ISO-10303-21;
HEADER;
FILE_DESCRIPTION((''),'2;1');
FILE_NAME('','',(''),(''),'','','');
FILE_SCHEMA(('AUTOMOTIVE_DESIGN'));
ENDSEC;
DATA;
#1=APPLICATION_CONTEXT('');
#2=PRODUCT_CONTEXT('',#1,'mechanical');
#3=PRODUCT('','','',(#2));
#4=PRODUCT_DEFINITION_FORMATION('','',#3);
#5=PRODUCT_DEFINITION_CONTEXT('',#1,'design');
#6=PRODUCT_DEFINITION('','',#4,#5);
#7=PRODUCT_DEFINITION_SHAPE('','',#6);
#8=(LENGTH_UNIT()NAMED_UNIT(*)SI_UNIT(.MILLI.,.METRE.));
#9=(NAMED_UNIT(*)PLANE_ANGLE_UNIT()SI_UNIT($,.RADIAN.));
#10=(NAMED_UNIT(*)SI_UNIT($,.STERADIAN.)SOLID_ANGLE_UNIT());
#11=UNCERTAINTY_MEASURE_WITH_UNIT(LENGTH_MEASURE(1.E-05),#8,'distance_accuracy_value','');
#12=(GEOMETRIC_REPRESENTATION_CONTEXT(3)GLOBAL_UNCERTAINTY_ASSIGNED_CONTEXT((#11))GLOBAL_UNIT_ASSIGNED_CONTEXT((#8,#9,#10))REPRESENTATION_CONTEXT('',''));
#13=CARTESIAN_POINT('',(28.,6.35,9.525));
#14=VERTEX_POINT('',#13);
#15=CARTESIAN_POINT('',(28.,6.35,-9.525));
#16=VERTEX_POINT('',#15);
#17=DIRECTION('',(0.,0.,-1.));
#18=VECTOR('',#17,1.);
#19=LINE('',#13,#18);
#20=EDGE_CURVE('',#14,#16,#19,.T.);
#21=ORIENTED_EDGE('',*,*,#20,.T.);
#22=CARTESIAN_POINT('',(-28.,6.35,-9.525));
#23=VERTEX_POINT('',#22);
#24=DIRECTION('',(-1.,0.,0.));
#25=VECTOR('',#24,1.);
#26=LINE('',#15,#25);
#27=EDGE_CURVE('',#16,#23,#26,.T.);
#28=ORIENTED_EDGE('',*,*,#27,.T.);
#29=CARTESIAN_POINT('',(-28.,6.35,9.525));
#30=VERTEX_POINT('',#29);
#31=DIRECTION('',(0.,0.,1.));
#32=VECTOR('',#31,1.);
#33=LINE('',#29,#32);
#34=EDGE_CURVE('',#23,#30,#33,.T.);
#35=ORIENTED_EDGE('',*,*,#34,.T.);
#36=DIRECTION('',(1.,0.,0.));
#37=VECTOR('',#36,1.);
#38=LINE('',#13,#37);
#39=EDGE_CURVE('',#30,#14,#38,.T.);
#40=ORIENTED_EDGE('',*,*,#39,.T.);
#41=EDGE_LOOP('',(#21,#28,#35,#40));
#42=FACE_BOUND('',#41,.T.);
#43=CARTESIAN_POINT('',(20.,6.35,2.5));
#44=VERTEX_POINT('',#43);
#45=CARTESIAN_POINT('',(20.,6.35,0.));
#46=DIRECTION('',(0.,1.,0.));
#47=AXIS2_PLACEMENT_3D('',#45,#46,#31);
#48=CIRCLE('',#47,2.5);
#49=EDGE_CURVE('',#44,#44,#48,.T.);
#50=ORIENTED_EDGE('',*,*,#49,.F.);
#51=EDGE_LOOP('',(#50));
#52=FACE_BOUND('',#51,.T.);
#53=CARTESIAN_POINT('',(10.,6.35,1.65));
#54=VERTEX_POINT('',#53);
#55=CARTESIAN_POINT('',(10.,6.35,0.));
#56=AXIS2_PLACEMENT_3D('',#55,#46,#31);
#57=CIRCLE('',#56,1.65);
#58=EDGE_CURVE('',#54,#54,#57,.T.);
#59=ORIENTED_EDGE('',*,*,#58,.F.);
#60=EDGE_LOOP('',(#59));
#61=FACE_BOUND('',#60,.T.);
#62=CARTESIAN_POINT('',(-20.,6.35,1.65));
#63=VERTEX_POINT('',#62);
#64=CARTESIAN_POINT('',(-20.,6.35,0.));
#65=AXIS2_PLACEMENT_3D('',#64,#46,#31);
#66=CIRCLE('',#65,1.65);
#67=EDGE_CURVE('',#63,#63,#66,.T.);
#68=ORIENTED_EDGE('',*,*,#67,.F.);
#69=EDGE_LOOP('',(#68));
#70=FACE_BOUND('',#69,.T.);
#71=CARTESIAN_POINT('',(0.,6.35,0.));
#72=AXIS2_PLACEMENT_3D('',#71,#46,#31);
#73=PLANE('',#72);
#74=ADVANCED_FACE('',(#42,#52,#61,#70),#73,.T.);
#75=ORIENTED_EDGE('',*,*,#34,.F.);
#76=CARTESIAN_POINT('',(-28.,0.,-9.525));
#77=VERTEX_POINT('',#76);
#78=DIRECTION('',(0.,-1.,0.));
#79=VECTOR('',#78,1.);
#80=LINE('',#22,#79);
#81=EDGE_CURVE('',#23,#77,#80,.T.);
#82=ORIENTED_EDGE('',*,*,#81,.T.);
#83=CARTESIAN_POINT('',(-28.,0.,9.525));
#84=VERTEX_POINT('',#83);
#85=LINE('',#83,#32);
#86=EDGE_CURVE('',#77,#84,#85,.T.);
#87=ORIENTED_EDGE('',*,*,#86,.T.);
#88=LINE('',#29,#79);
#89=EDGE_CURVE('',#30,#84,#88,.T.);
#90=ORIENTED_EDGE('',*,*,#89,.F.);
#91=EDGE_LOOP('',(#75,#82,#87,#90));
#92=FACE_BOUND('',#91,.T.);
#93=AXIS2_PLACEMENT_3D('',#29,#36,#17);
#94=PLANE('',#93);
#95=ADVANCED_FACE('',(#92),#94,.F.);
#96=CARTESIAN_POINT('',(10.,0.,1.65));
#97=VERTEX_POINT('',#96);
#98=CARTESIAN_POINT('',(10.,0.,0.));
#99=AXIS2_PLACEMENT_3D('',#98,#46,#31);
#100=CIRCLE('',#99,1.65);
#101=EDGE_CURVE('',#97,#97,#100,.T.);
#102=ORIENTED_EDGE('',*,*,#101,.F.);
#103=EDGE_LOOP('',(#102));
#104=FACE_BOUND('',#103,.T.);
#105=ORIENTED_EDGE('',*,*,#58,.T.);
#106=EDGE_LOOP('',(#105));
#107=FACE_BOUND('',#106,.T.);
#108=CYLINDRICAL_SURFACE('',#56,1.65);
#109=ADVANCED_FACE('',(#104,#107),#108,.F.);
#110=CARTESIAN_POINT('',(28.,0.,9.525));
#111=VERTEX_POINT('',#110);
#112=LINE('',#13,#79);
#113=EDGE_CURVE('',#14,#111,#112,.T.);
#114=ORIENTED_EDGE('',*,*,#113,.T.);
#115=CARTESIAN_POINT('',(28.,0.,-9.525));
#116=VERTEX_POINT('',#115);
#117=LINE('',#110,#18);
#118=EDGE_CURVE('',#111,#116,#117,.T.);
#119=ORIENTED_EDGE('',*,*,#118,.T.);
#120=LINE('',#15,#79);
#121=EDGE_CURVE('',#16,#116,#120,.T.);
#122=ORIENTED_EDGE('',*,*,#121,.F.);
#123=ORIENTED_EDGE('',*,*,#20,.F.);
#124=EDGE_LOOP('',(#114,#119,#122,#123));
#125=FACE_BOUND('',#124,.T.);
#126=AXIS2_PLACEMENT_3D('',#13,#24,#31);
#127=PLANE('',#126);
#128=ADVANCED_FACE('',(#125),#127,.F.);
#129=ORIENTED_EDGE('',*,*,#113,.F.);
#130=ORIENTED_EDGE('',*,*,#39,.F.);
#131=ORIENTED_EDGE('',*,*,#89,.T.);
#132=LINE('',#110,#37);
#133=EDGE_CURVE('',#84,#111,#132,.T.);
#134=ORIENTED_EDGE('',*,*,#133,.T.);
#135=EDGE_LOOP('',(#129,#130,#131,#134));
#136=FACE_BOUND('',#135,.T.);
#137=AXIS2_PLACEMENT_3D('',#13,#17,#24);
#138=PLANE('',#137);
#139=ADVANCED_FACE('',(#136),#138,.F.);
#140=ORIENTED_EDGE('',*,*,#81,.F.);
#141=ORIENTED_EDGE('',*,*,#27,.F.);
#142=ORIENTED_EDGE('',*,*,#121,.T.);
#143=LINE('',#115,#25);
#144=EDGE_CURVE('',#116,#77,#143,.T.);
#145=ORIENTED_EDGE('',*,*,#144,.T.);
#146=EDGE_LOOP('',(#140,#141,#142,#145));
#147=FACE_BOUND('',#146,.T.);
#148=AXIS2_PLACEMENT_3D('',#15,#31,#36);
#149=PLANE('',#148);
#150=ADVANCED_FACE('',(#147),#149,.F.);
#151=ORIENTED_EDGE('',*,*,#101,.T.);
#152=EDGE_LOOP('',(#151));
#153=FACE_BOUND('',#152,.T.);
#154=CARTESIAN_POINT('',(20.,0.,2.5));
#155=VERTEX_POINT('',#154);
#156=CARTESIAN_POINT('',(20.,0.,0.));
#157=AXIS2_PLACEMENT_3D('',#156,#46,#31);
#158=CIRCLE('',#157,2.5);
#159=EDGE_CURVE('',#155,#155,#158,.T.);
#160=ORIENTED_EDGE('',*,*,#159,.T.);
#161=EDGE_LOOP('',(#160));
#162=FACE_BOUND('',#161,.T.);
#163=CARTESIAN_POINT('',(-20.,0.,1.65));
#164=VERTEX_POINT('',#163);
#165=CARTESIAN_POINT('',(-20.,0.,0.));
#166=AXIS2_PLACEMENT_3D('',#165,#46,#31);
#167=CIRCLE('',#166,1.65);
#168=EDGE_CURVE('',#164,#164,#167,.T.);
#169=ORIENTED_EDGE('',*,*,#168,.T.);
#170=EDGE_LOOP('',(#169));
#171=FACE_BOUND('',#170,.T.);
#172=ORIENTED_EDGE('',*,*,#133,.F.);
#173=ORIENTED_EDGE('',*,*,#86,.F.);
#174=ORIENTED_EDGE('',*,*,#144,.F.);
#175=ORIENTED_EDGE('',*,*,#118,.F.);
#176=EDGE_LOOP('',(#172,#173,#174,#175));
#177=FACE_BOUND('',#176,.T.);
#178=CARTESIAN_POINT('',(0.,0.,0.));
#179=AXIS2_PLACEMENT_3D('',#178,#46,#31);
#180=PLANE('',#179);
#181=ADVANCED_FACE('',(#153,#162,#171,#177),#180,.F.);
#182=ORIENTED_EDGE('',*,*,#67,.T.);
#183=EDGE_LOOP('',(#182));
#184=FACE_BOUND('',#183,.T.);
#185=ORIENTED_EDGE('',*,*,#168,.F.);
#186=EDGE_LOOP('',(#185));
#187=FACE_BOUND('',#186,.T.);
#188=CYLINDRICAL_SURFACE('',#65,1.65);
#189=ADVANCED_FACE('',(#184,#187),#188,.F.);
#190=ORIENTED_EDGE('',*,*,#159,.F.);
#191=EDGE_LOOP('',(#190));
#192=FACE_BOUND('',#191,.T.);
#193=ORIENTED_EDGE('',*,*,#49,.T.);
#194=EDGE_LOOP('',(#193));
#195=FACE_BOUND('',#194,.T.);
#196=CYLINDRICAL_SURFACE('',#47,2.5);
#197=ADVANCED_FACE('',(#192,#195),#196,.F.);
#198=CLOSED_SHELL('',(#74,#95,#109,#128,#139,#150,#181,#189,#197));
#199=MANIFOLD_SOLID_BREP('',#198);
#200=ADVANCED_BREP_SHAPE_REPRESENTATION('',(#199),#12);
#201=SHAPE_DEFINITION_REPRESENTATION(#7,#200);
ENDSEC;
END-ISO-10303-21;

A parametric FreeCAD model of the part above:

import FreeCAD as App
import Part
import Sketcher
Q = App.Units.Quantity

doc = App.newDocument("Part")
body = doc.addObject("PartDesign::Body", "Body")

# Sketch on XZ plane
sketch1 = body.newObject("Sketcher::SketchObject", "Sketch")
sketch1.AttachmentSupport = (doc.getObject("XZ_Plane"), [""])
sketch1.MapMode = "FlatFace"
sketch1.addGeometry([
    Part.LineSegment(App.Vector(-28, -10, 0), App.Vector(-28, 10, 0)),
    Part.LineSegment(App.Vector(-28, 10, 0), App.Vector(28, 10, 0)),
    Part.LineSegment(App.Vector(28, 10, 0), App.Vector(28, -10, 0)),
    Part.LineSegment(App.Vector(28, -10, 0), App.Vector(-28, -10, 0)),
], False)
sketch1.addConstraint([
    Sketcher.Constraint("Coincident", 0, 2, 1, 1),
    Sketcher.Constraint("Coincident", 1, 2, 2, 1),
    Sketcher.Constraint("Coincident", 2, 2, 3, 1),
    Sketcher.Constraint("Coincident", 3, 2, 0, 1),
    Sketcher.Constraint("Vertical", 0),
    Sketcher.Constraint("Horizontal", 1),
    Sketcher.Constraint("Vertical", 2),
    Sketcher.Constraint("Horizontal", 3),
    Sketcher.Constraint("Symmetric", 0, 2, 2, 2, -1, 1),
    Sketcher.Constraint("DistanceX", 1, 1, 1, 2, Q("56 mm")),
    Sketcher.Constraint("DistanceY", 0, 1, 0, 2, Q("19.05 mm")),
])
pad1 = body.newObject("PartDesign::Pad", "Pad")
pad1.Profile = sketch1
pad1.Length = 6.35
pad1.Reversed = True

# Sketch on XZ plane
sketch2 = body.newObject("Sketcher::SketchObject", "Sketch001")
sketch2.AttachmentSupport = (doc.getObject("XZ_Plane"), [""])
sketch2.MapMode = "FlatFace"
sketch2.AttachmentOffset = App.Placement(App.Vector(0, 0, -6.35), App.Rotation())
sketch2.addGeometry(Part.Circle(App.Vector(20, 0, 0), App.Vector(0, 0, 1), 2.5), False)
sketch2.addConstraint([
    Sketcher.Constraint("PointOnObject", 0, 3, -1),
    Sketcher.Constraint("Diameter", 0, Q("5 mm")),
    Sketcher.Constraint("DistanceX", -1, 1, 0, 3, Q("20 mm")),
])
doc.recompute()
hole = body.newObject("PartDesign::Hole", "Hole")
hole.Profile = sketch2
hole.ThreadType = "None"
hole.Diameter = 5
hole.DepthType = "ThroughAll"
hole.Reversed = True

# Sketch on XZ plane
sketch3 = body.newObject("Sketcher::SketchObject", "Sketch002")
sketch3.AttachmentSupport = (doc.getObject("XZ_Plane"), [""])
sketch3.MapMode = "FlatFace"
sketch3.AttachmentOffset = App.Placement(App.Vector(0, 0, -6.35), App.Rotation())
sketch3.addGeometry([
    Part.Circle(App.Vector(-20, 0, 0), App.Vector(0, 0, 1), 1.6),
    Part.Circle(App.Vector(10, 0, 0), App.Vector(0, 0, 1), 1.6),
], False)
sketch3.addConstraint([
    Sketcher.Constraint("Equal", 0, 1),
    Sketcher.Constraint("PointOnObject", 0, 3, -1),
    Sketcher.Constraint("PointOnObject", 1, 3, -1),
    Sketcher.Constraint("Diameter", 0, Q("3.3 mm")),
    Sketcher.Constraint("DistanceX", 0, 3, -1, 1, Q("20 mm")),
    Sketcher.Constraint("DistanceX", -1, 1, 1, 3, Q("10 mm")),
])
doc.recompute()
hole2 = body.newObject("PartDesign::Hole", "Hole001")
hole2.Profile = sketch3
hole2.ThreadType = "None"
hole2.Diameter = 3.3
hole2.DepthType = "ThroughAll"
hole2.Reversed = True

doc.recompute()
